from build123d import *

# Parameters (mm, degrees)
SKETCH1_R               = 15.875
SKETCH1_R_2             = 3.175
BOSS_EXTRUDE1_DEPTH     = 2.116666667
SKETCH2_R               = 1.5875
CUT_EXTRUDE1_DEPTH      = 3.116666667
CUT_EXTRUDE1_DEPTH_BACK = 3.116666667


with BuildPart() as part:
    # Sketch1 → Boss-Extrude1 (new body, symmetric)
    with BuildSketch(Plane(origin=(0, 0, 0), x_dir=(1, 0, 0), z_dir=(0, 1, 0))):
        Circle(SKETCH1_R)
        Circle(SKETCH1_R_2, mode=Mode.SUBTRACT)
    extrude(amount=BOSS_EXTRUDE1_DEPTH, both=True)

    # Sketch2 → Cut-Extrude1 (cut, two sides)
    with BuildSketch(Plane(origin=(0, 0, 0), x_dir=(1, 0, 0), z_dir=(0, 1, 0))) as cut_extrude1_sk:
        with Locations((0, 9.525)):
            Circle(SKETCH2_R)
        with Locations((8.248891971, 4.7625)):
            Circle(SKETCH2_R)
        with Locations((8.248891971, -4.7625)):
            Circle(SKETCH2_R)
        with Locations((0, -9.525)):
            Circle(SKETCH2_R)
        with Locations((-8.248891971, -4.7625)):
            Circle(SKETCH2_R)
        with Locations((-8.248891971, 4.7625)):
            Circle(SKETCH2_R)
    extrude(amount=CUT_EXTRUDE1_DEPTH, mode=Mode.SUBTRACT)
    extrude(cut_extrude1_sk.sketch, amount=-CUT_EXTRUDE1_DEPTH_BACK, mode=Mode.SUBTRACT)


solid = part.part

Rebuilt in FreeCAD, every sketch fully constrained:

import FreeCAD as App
import Part
import Sketcher
from FreeCAD import Vector
Q = App.Units.Quantity

doc = App.newDocument("Part")
body = doc.addObject("PartDesign::Body", "Body")

sketch1 = body.newObject("Sketcher::SketchObject", "Sketch")
sketch1.AttachmentSupport = (doc.getObject("XZ_Plane"), [""])
sketch1.MapMode = "FlatFace"
sketch1.addGeometry([
    Part.Circle(Vector(0, 0, 0), Vector(0, 0, 1), 15.875),
    Part.Circle(Vector(0, 0, 0), Vector(0, 0, 1), 3.175),
], False)
sketch1.addConstraint([
    Sketcher.Constraint("Coincident", 0, 3, -1, 1),
    Sketcher.Constraint("Coincident", 1, 3, -1, 1),
    Sketcher.Constraint("Diameter", 0, Q("1.25 in")),
    Sketcher.Constraint("Diameter", 1, Q("0.25 in")),
])
pad1 = body.newObject("PartDesign::Pad", "Pad")
pad1.Profile = sketch1
pad1.Length = 4.233333
pad1.Midplane = True

sketch2 = body.newObject("Sketcher::SketchObject", "Sketch001")
sketch2.AttachmentSupport = (doc.getObject("XZ_Plane"), [""])
sketch2.MapMode = "FlatFace"
sketch2.addGeometry([
    Part.Circle(Vector(0, -9.525, 0), Vector(0, 0, 1), 1.5875),
    Part.Circle(Vector(8.248892, -4.7625, 0), Vector(0, 0, 1), 1.5875),
    Part.Circle(Vector(8.248892, 4.7625, 0), Vector(0, 0, 1), 1.5875),
    Part.Circle(Vector(0, 9.525, 0), Vector(0, 0, 1), 1.5875),
    Part.Circle(Vector(-8.248892, 4.7625, 0), Vector(0, 0, 1), 1.5875),
    Part.Circle(Vector(-8.248892, -4.7625, 0), Vector(0, 0, 1), 1.5875),
], False)
sketch2.addConstraint([
    Sketcher.Constraint("Equal", 0, 1),
    Sketcher.Constraint("Equal", 1, 2),
    Sketcher.Constraint("Equal", 2, 3),
    Sketcher.Constraint("Equal", 3, 4),
    Sketcher.Constraint("Equal", 4, 5),
    Sketcher.Constraint("Symmetric", 0, 3, 3, 3, -1, 1),
    Sketcher.Constraint("Symmetric", 1, 3, 4, 3, -1, 1),
    Sketcher.Constraint("Symmetric", 2, 3, 5, 3, -1, 1),
    Sketcher.Constraint("Symmetric", 2, 3, 4, 3, -2),
    Sketcher.Constraint("PointOnObject", 0, 3, -2),
    Sketcher.Constraint("Diameter", 0, Q("0.125 in")),
    Sketcher.Constraint("DistanceY", 0, 3, 3, 3, Q("0.75 in")),
    Sketcher.Constraint("DistanceY", 1, 3, -1, 1, Q("0.1875 in")),
    Sketcher.Constraint("DistanceX", -1, 1, 1, 3, Q("8.248892 mm")),
])
pocket1 = body.newObject("PartDesign::Pocket", "Pocket")
pocket1.Profile = sketch2
pocket1.Type = "ThroughAll"
pocket1.Midplane = True

doc.recompute()
